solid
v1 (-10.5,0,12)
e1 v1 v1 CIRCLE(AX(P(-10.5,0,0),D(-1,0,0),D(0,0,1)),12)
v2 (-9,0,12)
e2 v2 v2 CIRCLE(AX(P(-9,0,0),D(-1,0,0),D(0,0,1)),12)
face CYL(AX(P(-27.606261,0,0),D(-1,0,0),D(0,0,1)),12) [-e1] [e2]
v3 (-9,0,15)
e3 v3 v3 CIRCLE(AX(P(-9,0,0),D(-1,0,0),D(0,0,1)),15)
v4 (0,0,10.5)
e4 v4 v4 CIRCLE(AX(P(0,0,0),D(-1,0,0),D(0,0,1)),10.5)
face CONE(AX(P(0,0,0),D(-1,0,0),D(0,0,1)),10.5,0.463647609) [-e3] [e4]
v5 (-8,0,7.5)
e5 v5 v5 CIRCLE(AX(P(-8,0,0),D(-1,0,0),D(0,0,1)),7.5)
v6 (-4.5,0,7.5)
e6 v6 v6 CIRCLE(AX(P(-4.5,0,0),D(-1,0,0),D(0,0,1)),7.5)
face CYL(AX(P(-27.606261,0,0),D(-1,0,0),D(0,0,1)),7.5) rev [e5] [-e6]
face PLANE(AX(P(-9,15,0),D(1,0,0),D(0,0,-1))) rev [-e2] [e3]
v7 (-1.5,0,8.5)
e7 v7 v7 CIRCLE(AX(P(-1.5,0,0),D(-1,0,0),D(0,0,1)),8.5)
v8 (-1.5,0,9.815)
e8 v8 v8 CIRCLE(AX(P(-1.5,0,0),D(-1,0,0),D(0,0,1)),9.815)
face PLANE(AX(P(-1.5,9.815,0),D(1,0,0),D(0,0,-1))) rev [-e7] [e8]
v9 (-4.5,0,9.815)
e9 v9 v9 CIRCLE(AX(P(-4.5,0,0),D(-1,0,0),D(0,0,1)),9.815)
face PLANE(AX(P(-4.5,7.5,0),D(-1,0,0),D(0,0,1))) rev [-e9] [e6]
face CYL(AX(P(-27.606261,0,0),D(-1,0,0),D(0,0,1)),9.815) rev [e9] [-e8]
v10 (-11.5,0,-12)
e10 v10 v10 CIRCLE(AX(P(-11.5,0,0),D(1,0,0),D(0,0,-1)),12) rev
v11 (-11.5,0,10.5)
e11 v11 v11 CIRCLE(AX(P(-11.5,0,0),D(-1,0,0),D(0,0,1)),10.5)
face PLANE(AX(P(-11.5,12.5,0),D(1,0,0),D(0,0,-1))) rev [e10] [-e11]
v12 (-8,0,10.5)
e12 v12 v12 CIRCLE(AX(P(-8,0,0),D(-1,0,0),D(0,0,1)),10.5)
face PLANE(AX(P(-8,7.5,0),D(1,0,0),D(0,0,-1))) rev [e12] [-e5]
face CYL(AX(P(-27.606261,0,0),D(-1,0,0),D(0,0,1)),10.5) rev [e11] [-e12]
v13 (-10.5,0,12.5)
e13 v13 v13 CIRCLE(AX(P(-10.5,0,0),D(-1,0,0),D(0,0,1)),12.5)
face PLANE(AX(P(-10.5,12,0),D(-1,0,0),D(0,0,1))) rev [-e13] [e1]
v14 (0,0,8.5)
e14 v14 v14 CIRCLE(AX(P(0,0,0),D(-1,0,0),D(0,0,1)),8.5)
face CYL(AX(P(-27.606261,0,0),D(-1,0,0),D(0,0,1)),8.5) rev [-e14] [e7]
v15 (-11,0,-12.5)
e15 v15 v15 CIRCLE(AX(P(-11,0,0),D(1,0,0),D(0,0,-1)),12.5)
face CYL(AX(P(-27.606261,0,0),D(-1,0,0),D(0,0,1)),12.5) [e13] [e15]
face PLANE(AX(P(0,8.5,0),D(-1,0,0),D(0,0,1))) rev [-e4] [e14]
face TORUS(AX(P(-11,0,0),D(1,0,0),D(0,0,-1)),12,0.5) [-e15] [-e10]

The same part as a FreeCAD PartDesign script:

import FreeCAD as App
import Part
import Sketcher
from FreeCAD import Vector
Q = App.Units.Quantity


def edges_at(feature, points):
    """Names of the edges that pass closest to the given points."""
    edges = feature.Shape.Edges
    near = lambda p: min(range(len(edges)), key=lambda i: edges[i].distToShape(Part.Vertex(*p))[0])
    return sorted({f"Edge{near(p) + 1}" for p in points})


def add_polygon(sketch, points):
    """Adds a closed chain of lines whose ends are joined by coincident constraints."""
    first, n = sketch.GeometryCount, len(points)
    for a, b in zip(points, points[1:] + points[:1]):
        sketch.addGeometry(Part.LineSegment(App.Vector(*a, 0), App.Vector(*b, 0)), False)
    for i in range(n):
        sketch.addConstraint(Sketcher.Constraint("Coincident", first + i, 2, first + (i + 1) % n, 1))

doc = App.newDocument("Part")
body = doc.addObject("PartDesign::Body", "Body")

sketch1 = body.newObject("Sketcher::SketchObject", "Sketch")
sketch1.AttachmentSupport = (doc.getObject("XY_Plane"), [""])
sketch1.MapMode = "FlatFace"
add_polygon(sketch1, [(-8, 7.5), (-4.5, 7.5), (-4.5, 9.815), (-1.5, 9.815), (-1.5, 8.5), (0, 8.5), (0, 10.5), (-9, 15), (-9, 12), (-10.5, 12), (-10.5, 12.5), (-11.5, 12.5), (-11.5, 10.5), (-8, 10.5)])
sketch1.addConstraint([
    Sketcher.Constraint("Horizontal", 0),
    Sketcher.Constraint("Vertical", 1),
    Sketcher.Constraint("Horizontal", 2),
    Sketcher.Constraint("Vertical", 3),
    Sketcher.Constraint("Horizontal", 4),
    Sketcher.Constraint("Vertical", 5),
    Sketcher.Constraint("Vertical", 7),
    Sketcher.Constraint("Horizontal", 8),
    Sketcher.Constraint("Vertical", 9),
    Sketcher.Constraint("Horizontal", 10),
    Sketcher.Constraint("Vertical", 11),
    Sketcher.Constraint("Horizontal", 12),
    Sketcher.Constraint("Vertical", 13),
    Sketcher.Constraint("PointOnObject", 4, 2, -2),
    Sketcher.Constraint("Horizontal", 5, 2, 11, 2),
    Sketcher.Constraint("Equal", 4, 8),
    Sketcher.Constraint("Equal", 0, 12),
    Sketcher.Constraint("Equal", 2, 7),
    Sketcher.Constraint("Equal", 5, 11),
    Sketcher.Constraint("Equal", 7, 13),
    Sketcher.Constraint("DistanceX", 2, 1, 2, 2, Q("3 mm")),
    Sketcher.Constraint("DistanceX", 10, 2, 10, 1, Q("1 mm")),
    Sketcher.Constraint("DistanceY", 5, 1, 5, 2, Q("2 mm")),
    Sketcher.Constraint("DistanceX", 0, 1, 0, 2, Q("3.5 mm")),
    Sketcher.Constraint("DistanceX", 4, 1, 4, 2, Q("1.5 mm")),
    Sketcher.Constraint("DistanceY", 9, 1, 9, 2, Q("0.5 mm")),
    Sketcher.Constraint("DistanceY", -1, 1, 6, 2, Q("15 mm")),
    Sketcher.Constraint("DistanceY", 1, 1, 1, 2, Q("2.315 mm")),
])
revolution = body.newObject("PartDesign::Revolution", "Revolution")
revolution.Profile = sketch1
revolution.ReferenceAxis = (sketch1, ["H_Axis"])
revolution.Angle = 360
doc.recompute()

fillet = body.newObject("PartDesign::Fillet", "Fillet")
fillet.Base = (revolution, edges_at(revolution, [(-11.5, 0, -12.5)]))
fillet.Radius = 0.5

doc.recompute()
